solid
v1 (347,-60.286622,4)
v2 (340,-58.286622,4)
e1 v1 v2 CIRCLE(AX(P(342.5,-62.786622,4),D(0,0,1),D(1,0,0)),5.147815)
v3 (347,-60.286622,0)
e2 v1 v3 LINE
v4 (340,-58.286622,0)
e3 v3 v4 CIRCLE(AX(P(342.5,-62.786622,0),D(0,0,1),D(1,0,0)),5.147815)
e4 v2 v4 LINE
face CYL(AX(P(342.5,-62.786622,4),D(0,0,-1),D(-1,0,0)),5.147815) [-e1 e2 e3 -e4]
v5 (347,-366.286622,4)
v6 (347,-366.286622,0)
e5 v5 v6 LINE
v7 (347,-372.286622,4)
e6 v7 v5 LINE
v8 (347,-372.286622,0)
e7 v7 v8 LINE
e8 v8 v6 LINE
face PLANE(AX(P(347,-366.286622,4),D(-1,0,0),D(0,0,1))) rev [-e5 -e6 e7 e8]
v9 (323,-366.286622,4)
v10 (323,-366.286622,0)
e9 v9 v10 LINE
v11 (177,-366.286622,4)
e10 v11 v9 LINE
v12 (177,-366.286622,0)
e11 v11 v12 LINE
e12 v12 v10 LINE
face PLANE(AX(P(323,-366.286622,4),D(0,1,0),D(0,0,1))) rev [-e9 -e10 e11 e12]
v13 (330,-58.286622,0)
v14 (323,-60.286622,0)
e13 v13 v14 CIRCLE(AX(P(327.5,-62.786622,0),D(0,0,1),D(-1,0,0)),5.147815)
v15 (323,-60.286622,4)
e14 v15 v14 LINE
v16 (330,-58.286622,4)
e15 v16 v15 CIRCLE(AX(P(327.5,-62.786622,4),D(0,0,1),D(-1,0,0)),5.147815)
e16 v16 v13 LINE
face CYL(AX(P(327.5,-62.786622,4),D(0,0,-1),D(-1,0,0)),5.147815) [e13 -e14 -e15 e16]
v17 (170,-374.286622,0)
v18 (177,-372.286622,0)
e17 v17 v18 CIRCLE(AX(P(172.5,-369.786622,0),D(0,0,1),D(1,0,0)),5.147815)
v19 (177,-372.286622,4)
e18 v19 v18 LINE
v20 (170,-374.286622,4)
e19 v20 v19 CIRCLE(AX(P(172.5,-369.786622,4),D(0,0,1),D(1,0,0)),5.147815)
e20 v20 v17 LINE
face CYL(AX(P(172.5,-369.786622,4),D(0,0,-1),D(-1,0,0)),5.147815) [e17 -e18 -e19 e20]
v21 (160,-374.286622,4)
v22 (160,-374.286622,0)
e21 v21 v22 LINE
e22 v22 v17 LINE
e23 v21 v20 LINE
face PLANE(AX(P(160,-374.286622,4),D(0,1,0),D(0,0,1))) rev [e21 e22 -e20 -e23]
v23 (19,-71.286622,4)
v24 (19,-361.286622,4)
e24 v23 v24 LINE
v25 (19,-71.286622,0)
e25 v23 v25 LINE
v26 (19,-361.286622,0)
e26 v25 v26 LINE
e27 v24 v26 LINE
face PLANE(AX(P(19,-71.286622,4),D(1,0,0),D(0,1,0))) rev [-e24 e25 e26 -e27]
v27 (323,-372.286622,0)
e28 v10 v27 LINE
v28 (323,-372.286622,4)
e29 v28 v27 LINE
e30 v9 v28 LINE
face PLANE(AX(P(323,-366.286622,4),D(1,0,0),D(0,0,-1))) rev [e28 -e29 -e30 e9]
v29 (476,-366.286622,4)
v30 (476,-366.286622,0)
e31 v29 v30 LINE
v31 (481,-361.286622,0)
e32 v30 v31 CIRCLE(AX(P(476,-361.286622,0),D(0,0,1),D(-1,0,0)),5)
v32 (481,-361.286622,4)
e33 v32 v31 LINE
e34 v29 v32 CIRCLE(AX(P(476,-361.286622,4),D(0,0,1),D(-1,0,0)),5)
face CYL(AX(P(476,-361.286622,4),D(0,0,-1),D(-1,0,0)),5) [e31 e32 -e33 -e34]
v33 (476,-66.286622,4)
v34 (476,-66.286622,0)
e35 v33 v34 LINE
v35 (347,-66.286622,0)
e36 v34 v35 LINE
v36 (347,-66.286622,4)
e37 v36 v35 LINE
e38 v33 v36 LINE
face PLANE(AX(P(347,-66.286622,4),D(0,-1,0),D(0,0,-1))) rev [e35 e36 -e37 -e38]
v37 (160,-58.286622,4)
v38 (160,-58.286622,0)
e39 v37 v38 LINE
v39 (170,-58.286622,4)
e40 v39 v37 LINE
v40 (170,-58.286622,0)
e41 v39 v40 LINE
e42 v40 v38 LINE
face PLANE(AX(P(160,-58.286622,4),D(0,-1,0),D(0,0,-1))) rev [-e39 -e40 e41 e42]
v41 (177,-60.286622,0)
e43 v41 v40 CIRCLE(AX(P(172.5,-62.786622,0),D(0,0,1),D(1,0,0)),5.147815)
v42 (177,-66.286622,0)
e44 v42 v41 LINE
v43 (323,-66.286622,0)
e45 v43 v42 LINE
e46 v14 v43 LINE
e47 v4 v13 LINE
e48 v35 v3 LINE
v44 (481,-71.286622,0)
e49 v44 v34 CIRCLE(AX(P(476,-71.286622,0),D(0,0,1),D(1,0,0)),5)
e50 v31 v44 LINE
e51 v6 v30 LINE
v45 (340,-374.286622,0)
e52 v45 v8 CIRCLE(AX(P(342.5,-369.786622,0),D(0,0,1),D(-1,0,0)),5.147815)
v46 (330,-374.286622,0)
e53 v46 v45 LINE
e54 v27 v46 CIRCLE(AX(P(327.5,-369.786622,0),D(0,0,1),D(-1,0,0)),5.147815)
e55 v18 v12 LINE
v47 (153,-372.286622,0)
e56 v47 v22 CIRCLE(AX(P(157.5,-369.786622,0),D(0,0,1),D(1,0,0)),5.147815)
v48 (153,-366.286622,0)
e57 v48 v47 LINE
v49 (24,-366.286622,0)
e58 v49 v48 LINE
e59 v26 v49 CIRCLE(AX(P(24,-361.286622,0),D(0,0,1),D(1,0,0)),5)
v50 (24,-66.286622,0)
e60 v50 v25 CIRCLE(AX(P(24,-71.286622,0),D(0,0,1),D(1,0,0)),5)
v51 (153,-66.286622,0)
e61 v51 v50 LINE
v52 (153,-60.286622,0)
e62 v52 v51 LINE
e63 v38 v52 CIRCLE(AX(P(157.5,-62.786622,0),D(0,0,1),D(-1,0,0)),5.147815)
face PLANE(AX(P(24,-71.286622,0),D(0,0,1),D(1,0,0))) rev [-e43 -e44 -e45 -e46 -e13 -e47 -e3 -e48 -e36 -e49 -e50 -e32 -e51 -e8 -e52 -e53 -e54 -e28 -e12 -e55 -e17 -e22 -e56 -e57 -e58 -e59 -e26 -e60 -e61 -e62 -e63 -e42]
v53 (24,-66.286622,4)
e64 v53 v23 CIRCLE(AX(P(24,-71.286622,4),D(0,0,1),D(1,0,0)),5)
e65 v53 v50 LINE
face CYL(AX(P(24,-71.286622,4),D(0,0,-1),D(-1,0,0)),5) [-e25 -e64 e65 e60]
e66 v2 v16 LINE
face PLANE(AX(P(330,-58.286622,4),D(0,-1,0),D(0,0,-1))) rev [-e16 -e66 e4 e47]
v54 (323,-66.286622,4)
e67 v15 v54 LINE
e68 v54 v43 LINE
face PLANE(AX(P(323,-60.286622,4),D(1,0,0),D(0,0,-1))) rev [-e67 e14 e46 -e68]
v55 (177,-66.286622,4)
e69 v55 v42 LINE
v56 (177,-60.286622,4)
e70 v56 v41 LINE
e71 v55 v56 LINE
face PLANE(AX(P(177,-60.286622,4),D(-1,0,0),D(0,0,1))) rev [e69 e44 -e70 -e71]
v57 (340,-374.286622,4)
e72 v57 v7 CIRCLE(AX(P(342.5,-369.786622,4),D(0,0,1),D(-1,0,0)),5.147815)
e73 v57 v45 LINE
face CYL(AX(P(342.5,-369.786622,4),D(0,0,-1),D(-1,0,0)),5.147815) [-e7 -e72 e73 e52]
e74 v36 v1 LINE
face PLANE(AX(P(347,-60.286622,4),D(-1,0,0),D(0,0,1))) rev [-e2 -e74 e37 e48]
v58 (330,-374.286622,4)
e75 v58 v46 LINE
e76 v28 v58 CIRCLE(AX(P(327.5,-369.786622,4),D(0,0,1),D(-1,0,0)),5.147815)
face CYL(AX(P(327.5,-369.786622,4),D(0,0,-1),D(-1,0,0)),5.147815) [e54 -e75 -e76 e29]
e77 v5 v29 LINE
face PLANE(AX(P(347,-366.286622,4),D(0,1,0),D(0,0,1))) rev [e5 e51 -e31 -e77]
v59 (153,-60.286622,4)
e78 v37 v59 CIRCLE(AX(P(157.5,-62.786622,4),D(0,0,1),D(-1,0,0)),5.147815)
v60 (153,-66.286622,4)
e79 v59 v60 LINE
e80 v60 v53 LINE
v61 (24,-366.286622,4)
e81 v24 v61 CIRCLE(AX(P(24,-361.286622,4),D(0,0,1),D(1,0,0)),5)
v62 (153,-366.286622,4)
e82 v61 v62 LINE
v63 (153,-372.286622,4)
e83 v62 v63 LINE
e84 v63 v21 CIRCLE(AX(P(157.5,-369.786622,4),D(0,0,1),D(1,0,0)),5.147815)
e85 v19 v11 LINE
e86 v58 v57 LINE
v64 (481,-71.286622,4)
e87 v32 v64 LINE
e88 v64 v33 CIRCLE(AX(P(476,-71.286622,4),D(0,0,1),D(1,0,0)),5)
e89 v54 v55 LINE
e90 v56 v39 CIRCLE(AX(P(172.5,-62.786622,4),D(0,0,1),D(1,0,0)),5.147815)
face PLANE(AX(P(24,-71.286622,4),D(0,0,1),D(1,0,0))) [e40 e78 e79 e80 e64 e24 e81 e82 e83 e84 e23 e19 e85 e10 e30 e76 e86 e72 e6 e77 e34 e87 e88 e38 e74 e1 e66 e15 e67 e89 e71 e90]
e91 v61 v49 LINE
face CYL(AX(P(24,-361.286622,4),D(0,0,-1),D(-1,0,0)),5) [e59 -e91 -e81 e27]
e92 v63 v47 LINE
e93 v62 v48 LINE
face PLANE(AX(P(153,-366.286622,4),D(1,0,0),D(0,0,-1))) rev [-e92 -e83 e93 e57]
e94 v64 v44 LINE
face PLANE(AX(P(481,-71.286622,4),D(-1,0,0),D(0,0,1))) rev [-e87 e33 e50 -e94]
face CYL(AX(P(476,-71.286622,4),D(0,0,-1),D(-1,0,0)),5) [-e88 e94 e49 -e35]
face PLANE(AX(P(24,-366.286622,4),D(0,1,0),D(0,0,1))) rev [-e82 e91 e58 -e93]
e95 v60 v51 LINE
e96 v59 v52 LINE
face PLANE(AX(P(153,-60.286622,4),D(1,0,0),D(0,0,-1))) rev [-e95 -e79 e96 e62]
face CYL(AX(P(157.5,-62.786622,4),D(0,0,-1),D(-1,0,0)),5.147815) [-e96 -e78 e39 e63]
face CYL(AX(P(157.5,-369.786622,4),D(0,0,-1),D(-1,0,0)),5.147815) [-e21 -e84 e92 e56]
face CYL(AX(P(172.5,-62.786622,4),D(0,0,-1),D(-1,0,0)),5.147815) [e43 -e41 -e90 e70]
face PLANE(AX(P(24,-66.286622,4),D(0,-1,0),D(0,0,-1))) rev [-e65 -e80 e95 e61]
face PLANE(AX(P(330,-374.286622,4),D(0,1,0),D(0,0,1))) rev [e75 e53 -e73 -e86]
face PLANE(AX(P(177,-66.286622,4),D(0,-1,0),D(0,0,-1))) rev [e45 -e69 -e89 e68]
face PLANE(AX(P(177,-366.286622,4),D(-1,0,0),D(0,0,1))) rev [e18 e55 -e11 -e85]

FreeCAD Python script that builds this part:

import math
import FreeCAD as App
import Part
import Sketcher
from FreeCAD import Vector
Q = App.Units.Quantity

doc = App.newDocument("Part")
params = doc.addObject("Spreadsheet::Sheet", "Params")
for row, (alias, value) in enumerate([
    ("sketch1_radius", "5 mm"),
    ("sketch1_width", "146 mm"),
    ("sketch1_width2", "10 mm"),
    ("sketch1_width3", "129 mm"),
    ("sketch1_height", "6 mm"),
    ("pad1_length", "4 mm"),
], start=1):
    params.set(f"A{row}", alias)
    params.set(f"B{row}", "=" + value)
    params.setAlias(f"B{row}", alias)

body = doc.addObject("PartDesign::Body", "Body")

# Sketch on XY plane
sketch1 = body.newObject("Sketcher::SketchObject", "Sketch")
sketch1.AttachmentSupport = (doc.getObject("XY_Plane"), [""])
sketch1.MapMode = "FlatFace"
sketch1.addGeometry([
    Part.LineSegment(Vector(323, -66.286622, 0), Vector(177, -66.286622, 0)),  # 0
    Part.LineSegment(Vector(177, -66.286622, 0), Vector(177, -60.286622, 0)),  # 1
    Part.ArcOfCircle(Part.Circle(Vector(172.5, -62.786622, 0), Vector(0, 0, 1), 5.147815), math.radians(29.054604), math.radians(119.054604)),  # 2
    Part.LineSegment(Vector(170, -58.286622, 0), Vector(160, -58.286622, 0)),  # 3
    Part.ArcOfCircle(Part.Circle(Vector(157.5, -62.786622, 0), Vector(0, 0, 1), 5.147815), math.radians(60.945396), math.radians(150.945396)),  # 4
    Part.LineSegment(Vector(153, -60.286622, 0), Vector(153, -66.286622, 0)),  # 5
    Part.LineSegment(Vector(153, -66.286622, 0), Vector(24, -66.286622, 0)),  # 6
    Part.ArcOfCircle(Part.Circle(Vector(24, -71.286622, 0), Vector(0, 0, 1), 5), math.radians(90), math.radians(180)),  # 7
    Part.LineSegment(Vector(19, -71.286622, 0), Vector(19, -361.286622, 0)),  # 8
    Part.ArcOfCircle(Part.Circle(Vector(24, -361.286622, 0), Vector(0, 0, 1), 5), math.radians(180), math.radians(270)),  # 9
    Part.LineSegment(Vector(24, -366.286622, 0), Vector(153, -366.286622, 0)),  # 10
    Part.LineSegment(Vector(153, -366.286622, 0), Vector(153, -372.286622, 0)),  # 11
    Part.ArcOfCircle(Part.Circle(Vector(157.5, -369.786622, 0), Vector(0, 0, 1), 5.147815), math.radians(-150.945396), math.radians(-60.945396)),  # 12
    Part.LineSegment(Vector(160, -374.286622, 0), Vector(170, -374.286622, 0)),  # 13
    Part.ArcOfCircle(Part.Circle(Vector(172.5, -369.786622, 0), Vector(0, 0, 1), 5.147815), math.radians(-119.054604), math.radians(-29.054604)),  # 14
    Part.LineSegment(Vector(177, -372.286622, 0), Vector(177, -366.286622, 0)),  # 15
    Part.LineSegment(Vector(177, -366.286622, 0), Vector(323, -366.286622, 0)),  # 16
    Part.LineSegment(Vector(323, -366.286622, 0), Vector(323, -372.286622, 0)),  # 17
    Part.ArcOfCircle(Part.Circle(Vector(327.5, -369.786622, 0), Vector(0, 0, 1), 5.147815), math.radians(-150.945396), math.radians(-60.945396)),  # 18
    Part.LineSegment(Vector(330, -374.286622, 0), Vector(340, -374.286622, 0)),  # 19
    Part.ArcOfCircle(Part.Circle(Vector(342.5, -369.786622, 0), Vector(0, 0, 1), 5.147815), math.radians(-119.054604), math.radians(-29.054604)),  # 20
    Part.LineSegment(Vector(347, -372.286622, 0), Vector(347, -366.286622, 0)),  # 21
    Part.LineSegment(Vector(347, -366.286622, 0), Vector(476, -366.286622, 0)),  # 22
    Part.ArcOfCircle(Part.Circle(Vector(476, -361.286622, 0), Vector(0, 0, 1), 5), math.radians(-90), math.radians(0)),  # 23
    Part.LineSegment(Vector(481, -361.286622, 0), Vector(481, -71.286622, 0)),  # 24
    Part.ArcOfCircle(Part.Circle(Vector(476, -71.286622, 0), Vector(0, 0, 1), 5), math.radians(0), math.radians(90)),  # 25
    Part.LineSegment(Vector(476, -66.286622, 0), Vector(347, -66.286622, 0)),  # 26
    Part.LineSegment(Vector(347, -66.286622, 0), Vector(347, -60.286622, 0)),  # 27
    Part.ArcOfCircle(Part.Circle(Vector(342.5, -62.786622, 0), Vector(0, 0, 1), 5.147815), math.radians(29.054604), math.radians(119.054604)),  # 28
    Part.LineSegment(Vector(340, -58.286622, 0), Vector(330, -58.286622, 0)),  # 29
    Part.ArcOfCircle(Part.Circle(Vector(327.5, -62.786622, 0), Vector(0, 0, 1), 5.147815), math.radians(60.945396), math.radians(150.945396)),  # 30
    Part.LineSegment(Vector(323, -60.286622, 0), Vector(323, -66.286622, 0)),  # 31
], False)
sketch1.addConstraint([
    Sketcher.Constraint("Coincident", 0, 2, 1, 1),
    Sketcher.Constraint("Coincident", 1, 2, 2, 1),
    Sketcher.Constraint("Coincident", 2, 2, 3, 1),
    Sketcher.Constraint("Coincident", 3, 2, 4, 1),
    Sketcher.Constraint("Coincident", 4, 2, 5, 1),
    Sketcher.Constraint("Coincident", 5, 2, 6, 1),
    Sketcher.Constraint("Tangent", 6, 2, 7, 1),
    Sketcher.Constraint("Tangent", 7, 2, 8, 1),
    Sketcher.Constraint("Tangent", 8, 2, 9, 1),
    Sketcher.Constraint("Tangent", 9, 2, 10, 1),
    Sketcher.Constraint("Coincident", 10, 2, 11, 1),
    Sketcher.Constraint("Coincident", 11, 2, 12, 1),
    Sketcher.Constraint("Coincident", 12, 2, 13, 1),
    Sketcher.Constraint("Coincident", 13, 2, 14, 1),
    Sketcher.Constraint("Coincident", 14, 2, 15, 1),
    Sketcher.Constraint("Coincident", 15, 2, 16, 1),
    Sketcher.Constraint("Coincident", 16, 2, 17, 1),
    Sketcher.Constraint("Coincident", 17, 2, 18, 1),
    Sketcher.Constraint("Coincident", 18, 2, 19, 1),
    Sketcher.Constraint("Coincident", 19, 2, 20, 1),
    Sketcher.Constraint("Coincident", 20, 2, 21, 1),
    Sketcher.Constraint("Coincident", 21, 2, 22, 1),
    Sketcher.Constraint("Tangent", 22, 2, 23, 1),
    Sketcher.Constraint("Tangent", 23, 2, 24, 1),
    Sketcher.Constraint("Tangent", 24, 2, 25, 1),
    Sketcher.Constraint("Tangent", 25, 2, 26, 1),
    Sketcher.Constraint("Coincident", 26, 2, 27, 1),
    Sketcher.Constraint("Coincident", 27, 2, 28, 1),
    Sketcher.Constraint("Coincident", 28, 2, 29, 1),
    Sketcher.Constraint("Coincident", 29, 2, 30, 1),
    Sketcher.Constraint("Coincident", 30, 2, 31, 1),
    Sketcher.Constraint("Coincident", 31, 2, 0, 1),
    Sketcher.Constraint("Horizontal", 0),
    Sketcher.Constraint("Vertical", 1),
    Sketcher.Constraint("Horizontal", 3),
    Sketcher.Constraint("Vertical", 5),
    Sketcher.Constraint("Horizontal", 6),
    Sketcher.Constraint("Vertical", 8),
    Sketcher.Constraint("Horizontal", 10),
    Sketcher.Constraint("Vertical", 11),
    Sketcher.Constraint("Horizontal", 13),
    Sketcher.Constraint("Vertical", 15),
    Sketcher.Constraint("Horizontal", 16),
    Sketcher.Constraint("Vertical", 17),
    Sketcher.Constraint("Horizontal", 19),
    Sketcher.Constraint("Vertical", 21),
    Sketcher.Constraint("Horizontal", 22),
    Sketcher.Constraint("Vertical", 24),
    Sketcher.Constraint("Horizontal", 26),
    Sketcher.Constraint("Vertical", 27),
    Sketcher.Constraint("Horizontal", 29),
    Sketcher.Constraint("Vertical", 31),
    Sketcher.Constraint("Equal", 2, 4),
    Sketcher.Constraint("Equal", 7, 9),
    Sketcher.Constraint("Equal", 4, 12),
    Sketcher.Constraint("Equal", 12, 14),
    Sketcher.Constraint("Equal", 14, 18),
    Sketcher.Constraint("Equal", 18, 20),
    Sketcher.Constraint("Equal", 9, 23),
    Sketcher.Constraint("Equal", 23, 25),
    Sketcher.Constraint("Equal", 20, 28),
    Sketcher.Constraint("Equal", 28, 30),
    Sketcher.Constraint("Horizontal", 2, 3, 4, 3),
    Sketcher.Constraint("Horizontal", 12, 3, 14, 3),
    Sketcher.Constraint("Horizontal", 14, 3, 18, 3),
    Sketcher.Constraint("Horizontal", 18, 3, 20, 3),
    Sketcher.Constraint("Horizontal", 9, 3, 23, 3),
    Sketcher.Constraint("Horizontal", 7, 3, 25, 3),
    Sketcher.Constraint("Horizontal", 4, 3, 28, 3),
    Sketcher.Constraint("Horizontal", 28, 3, 30, 3),
    Sketcher.Constraint("Horizontal", 1, 2, 4, 2),
    Sketcher.Constraint("Horizontal", 0, 2, 5, 2),
    Sketcher.Constraint("Horizontal", 11, 2, 14, 2),
    Sketcher.Constraint("Horizontal", 10, 2, 15, 2),
    Sketcher.Constraint("Horizontal", 14, 2, 17, 2),
    Sketcher.Constraint("Horizontal", 13, 2, 18, 2),
    Sketcher.Constraint("Horizontal", 17, 2, 20, 2),
    Sketcher.Constraint("Horizontal", 4, 2, 27, 2),
    Sketcher.Constraint("Horizontal", 3, 2, 28, 2),
    Sketcher.Constraint("Horizontal", 27, 2, 30, 2),
    Sketcher.Constraint("Vertical", 4, 3, 12, 3),
    Sketcher.Constraint("Vertical", 2, 3, 14, 3),
    Sketcher.Constraint("Vertical", 20, 3, 28, 3),
    Sketcher.Constraint("Vertical", 18, 3, 30, 3),
    Sketcher.Constraint("Vertical", 5, 2, 10, 2),
    Sketcher.Constraint("Vertical", 3, 2, 12, 2),
    Sketcher.Constraint("Equal", 13, 19),
    Sketcher.Constraint("Equal", 10, 22),
    Sketcher.Constraint("Equal", 5, 11),
    Sketcher.Constraint("Radius", 7, Q("5 mm")),
    Sketcher.Constraint("DistanceX", 0, 2, 0, 1, Q("146 mm")),
    Sketcher.Constraint("DistanceX", 3, 2, 3, 1, Q("10 mm")),
    Sketcher.Constraint("DistanceX", 6, 2, 6, 1, Q("129 mm")),
    Sketcher.Constraint("DistanceY", 1, 1, 1, 2, Q("6 mm")),
    Sketcher.Constraint("DistanceY", 8, 2, 8, 1, Q("290 mm")),
    Sketcher.Constraint("DistanceX", -1, 1, 7, 3, Q("24 mm")),
    Sketcher.Constraint("DistanceX", -1, 1, 23, 3, Q("476 mm")),
    Sketcher.Constraint("DistanceX", 4, 3, 2, 3, Q("15 mm")),
    Sketcher.Constraint("DistanceY", 12, 3, 4, 3, Q("307 mm")),
    Sketcher.Constraint("DistanceY", 2, 3, -1, 1, Q("62.786622 mm")),
])
sketch1.setExpression("Constraints[89]", "Params.sketch1_radius")
sketch1.setExpression("Constraints[90]", "Params.sketch1_width")
sketch1.setExpression("Constraints[91]", "Params.sketch1_width2")
sketch1.setExpression("Constraints[92]", "Params.sketch1_width3")
sketch1.setExpression("Constraints[93]", "Params.sketch1_height")
pad1 = body.newObject("PartDesign::Pad", "Pad")
pad1.Profile = sketch1
pad1.setExpression("Length", "Params.pad1_length")

doc.recompute()
